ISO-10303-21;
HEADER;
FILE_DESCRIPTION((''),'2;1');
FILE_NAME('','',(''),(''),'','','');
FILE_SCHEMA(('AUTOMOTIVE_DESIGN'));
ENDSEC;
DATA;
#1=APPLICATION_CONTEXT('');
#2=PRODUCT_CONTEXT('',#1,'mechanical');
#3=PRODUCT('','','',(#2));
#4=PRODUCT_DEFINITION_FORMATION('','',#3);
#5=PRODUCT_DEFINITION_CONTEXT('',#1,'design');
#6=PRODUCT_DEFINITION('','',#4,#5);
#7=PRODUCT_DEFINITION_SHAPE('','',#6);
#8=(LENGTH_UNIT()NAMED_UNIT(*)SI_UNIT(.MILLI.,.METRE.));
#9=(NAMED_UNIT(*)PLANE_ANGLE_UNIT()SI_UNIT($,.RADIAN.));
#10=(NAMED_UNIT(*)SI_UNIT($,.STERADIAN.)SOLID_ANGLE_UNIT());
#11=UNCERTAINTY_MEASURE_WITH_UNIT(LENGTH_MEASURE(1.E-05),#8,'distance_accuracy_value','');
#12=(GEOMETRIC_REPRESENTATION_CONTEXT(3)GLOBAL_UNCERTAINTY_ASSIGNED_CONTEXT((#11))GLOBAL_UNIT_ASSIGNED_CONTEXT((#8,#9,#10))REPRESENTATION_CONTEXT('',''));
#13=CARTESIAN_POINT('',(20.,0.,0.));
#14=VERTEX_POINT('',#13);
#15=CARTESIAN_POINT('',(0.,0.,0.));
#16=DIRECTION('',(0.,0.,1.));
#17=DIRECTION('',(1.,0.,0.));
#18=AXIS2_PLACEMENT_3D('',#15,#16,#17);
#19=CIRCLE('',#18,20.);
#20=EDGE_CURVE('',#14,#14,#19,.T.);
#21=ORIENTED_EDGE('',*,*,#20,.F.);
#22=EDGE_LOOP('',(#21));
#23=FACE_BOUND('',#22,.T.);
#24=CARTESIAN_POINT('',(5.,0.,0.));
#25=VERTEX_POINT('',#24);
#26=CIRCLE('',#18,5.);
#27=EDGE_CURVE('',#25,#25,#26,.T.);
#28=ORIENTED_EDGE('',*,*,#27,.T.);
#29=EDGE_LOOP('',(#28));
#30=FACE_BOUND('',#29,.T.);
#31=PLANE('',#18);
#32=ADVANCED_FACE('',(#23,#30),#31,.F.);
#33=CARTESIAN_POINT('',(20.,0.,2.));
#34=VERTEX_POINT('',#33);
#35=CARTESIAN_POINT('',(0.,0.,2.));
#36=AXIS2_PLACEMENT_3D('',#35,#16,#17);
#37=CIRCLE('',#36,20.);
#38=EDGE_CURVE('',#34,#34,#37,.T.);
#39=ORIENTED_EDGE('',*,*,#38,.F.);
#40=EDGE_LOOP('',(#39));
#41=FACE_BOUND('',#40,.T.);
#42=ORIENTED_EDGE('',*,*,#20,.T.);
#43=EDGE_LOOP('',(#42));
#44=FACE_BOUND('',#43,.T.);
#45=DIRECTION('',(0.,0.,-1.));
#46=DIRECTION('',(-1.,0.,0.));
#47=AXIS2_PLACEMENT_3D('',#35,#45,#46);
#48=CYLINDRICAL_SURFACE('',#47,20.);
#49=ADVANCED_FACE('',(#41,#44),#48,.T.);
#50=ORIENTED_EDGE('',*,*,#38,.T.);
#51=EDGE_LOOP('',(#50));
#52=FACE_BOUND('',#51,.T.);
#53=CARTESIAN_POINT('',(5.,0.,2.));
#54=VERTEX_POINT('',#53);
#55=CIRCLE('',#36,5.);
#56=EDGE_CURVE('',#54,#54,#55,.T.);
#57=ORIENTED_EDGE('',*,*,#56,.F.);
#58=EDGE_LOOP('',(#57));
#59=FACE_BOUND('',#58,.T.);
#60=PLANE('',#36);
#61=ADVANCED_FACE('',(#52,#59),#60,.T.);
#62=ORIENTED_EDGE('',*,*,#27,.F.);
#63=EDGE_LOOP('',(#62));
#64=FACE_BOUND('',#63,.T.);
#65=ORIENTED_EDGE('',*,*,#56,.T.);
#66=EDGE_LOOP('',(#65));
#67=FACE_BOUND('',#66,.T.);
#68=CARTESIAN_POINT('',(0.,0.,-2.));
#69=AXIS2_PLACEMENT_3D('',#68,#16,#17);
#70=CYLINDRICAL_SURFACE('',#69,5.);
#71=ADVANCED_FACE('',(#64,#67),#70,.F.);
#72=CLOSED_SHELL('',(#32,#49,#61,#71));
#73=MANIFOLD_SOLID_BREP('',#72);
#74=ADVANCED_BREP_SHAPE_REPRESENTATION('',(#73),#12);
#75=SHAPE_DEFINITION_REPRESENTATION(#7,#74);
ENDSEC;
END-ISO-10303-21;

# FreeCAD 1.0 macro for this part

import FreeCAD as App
import Part
import Sketcher

doc = App.newDocument("Part")
body = doc.addObject("PartDesign::Body", "Body")

sketch1 = doc.addObject("Sketcher::SketchObject", "Sketch")
body.addObject(sketch1)
sketch1.AttachmentSupport = (doc.XY_Plane, [""])
sketch1.MapMode = "FlatFace"
sketch1.addGeometry(Part.Circle(App.Vector(0, 0, 0), App.Vector(0, 0, 1), 20), False)
sketch1.addConstraint(Sketcher.Constraint("Coincident", 0, 3, -1, 1))
sketch1.addConstraint(Sketcher.Constraint("Diameter", 0, 40.0))
pad1 = doc.addObject("PartDesign::Pad", "Pad")
body.addObject(pad1)
pad1.Profile = sketch1
pad1.Length = 2

sketch2 = doc.addObject("Sketcher::SketchObject", "Sketch001")
body.addObject(sketch2)
sketch2.AttachmentSupport = (doc.XY_Plane, [""])
sketch2.MapMode = "FlatFace"
sketch2.AttachmentOffset = App.Placement(App.Vector(0, 0, 2), App.Rotation())
sketch2.addGeometry(Part.Circle(App.Vector(0, 0, 0), App.Vector(0, 0, 1), 5), False)
sketch2.addConstraint(Sketcher.Constraint("Coincident", 0, 3, -1, 1))
sketch2.addConstraint(Sketcher.Constraint("Diameter", 0, 10.0))
pocket1 = doc.addObject("PartDesign::Pocket", "Pocket")
body.addObject(pocket1)
pocket1.Profile = sketch2
pocket1.Length = 4

doc.recompute()
